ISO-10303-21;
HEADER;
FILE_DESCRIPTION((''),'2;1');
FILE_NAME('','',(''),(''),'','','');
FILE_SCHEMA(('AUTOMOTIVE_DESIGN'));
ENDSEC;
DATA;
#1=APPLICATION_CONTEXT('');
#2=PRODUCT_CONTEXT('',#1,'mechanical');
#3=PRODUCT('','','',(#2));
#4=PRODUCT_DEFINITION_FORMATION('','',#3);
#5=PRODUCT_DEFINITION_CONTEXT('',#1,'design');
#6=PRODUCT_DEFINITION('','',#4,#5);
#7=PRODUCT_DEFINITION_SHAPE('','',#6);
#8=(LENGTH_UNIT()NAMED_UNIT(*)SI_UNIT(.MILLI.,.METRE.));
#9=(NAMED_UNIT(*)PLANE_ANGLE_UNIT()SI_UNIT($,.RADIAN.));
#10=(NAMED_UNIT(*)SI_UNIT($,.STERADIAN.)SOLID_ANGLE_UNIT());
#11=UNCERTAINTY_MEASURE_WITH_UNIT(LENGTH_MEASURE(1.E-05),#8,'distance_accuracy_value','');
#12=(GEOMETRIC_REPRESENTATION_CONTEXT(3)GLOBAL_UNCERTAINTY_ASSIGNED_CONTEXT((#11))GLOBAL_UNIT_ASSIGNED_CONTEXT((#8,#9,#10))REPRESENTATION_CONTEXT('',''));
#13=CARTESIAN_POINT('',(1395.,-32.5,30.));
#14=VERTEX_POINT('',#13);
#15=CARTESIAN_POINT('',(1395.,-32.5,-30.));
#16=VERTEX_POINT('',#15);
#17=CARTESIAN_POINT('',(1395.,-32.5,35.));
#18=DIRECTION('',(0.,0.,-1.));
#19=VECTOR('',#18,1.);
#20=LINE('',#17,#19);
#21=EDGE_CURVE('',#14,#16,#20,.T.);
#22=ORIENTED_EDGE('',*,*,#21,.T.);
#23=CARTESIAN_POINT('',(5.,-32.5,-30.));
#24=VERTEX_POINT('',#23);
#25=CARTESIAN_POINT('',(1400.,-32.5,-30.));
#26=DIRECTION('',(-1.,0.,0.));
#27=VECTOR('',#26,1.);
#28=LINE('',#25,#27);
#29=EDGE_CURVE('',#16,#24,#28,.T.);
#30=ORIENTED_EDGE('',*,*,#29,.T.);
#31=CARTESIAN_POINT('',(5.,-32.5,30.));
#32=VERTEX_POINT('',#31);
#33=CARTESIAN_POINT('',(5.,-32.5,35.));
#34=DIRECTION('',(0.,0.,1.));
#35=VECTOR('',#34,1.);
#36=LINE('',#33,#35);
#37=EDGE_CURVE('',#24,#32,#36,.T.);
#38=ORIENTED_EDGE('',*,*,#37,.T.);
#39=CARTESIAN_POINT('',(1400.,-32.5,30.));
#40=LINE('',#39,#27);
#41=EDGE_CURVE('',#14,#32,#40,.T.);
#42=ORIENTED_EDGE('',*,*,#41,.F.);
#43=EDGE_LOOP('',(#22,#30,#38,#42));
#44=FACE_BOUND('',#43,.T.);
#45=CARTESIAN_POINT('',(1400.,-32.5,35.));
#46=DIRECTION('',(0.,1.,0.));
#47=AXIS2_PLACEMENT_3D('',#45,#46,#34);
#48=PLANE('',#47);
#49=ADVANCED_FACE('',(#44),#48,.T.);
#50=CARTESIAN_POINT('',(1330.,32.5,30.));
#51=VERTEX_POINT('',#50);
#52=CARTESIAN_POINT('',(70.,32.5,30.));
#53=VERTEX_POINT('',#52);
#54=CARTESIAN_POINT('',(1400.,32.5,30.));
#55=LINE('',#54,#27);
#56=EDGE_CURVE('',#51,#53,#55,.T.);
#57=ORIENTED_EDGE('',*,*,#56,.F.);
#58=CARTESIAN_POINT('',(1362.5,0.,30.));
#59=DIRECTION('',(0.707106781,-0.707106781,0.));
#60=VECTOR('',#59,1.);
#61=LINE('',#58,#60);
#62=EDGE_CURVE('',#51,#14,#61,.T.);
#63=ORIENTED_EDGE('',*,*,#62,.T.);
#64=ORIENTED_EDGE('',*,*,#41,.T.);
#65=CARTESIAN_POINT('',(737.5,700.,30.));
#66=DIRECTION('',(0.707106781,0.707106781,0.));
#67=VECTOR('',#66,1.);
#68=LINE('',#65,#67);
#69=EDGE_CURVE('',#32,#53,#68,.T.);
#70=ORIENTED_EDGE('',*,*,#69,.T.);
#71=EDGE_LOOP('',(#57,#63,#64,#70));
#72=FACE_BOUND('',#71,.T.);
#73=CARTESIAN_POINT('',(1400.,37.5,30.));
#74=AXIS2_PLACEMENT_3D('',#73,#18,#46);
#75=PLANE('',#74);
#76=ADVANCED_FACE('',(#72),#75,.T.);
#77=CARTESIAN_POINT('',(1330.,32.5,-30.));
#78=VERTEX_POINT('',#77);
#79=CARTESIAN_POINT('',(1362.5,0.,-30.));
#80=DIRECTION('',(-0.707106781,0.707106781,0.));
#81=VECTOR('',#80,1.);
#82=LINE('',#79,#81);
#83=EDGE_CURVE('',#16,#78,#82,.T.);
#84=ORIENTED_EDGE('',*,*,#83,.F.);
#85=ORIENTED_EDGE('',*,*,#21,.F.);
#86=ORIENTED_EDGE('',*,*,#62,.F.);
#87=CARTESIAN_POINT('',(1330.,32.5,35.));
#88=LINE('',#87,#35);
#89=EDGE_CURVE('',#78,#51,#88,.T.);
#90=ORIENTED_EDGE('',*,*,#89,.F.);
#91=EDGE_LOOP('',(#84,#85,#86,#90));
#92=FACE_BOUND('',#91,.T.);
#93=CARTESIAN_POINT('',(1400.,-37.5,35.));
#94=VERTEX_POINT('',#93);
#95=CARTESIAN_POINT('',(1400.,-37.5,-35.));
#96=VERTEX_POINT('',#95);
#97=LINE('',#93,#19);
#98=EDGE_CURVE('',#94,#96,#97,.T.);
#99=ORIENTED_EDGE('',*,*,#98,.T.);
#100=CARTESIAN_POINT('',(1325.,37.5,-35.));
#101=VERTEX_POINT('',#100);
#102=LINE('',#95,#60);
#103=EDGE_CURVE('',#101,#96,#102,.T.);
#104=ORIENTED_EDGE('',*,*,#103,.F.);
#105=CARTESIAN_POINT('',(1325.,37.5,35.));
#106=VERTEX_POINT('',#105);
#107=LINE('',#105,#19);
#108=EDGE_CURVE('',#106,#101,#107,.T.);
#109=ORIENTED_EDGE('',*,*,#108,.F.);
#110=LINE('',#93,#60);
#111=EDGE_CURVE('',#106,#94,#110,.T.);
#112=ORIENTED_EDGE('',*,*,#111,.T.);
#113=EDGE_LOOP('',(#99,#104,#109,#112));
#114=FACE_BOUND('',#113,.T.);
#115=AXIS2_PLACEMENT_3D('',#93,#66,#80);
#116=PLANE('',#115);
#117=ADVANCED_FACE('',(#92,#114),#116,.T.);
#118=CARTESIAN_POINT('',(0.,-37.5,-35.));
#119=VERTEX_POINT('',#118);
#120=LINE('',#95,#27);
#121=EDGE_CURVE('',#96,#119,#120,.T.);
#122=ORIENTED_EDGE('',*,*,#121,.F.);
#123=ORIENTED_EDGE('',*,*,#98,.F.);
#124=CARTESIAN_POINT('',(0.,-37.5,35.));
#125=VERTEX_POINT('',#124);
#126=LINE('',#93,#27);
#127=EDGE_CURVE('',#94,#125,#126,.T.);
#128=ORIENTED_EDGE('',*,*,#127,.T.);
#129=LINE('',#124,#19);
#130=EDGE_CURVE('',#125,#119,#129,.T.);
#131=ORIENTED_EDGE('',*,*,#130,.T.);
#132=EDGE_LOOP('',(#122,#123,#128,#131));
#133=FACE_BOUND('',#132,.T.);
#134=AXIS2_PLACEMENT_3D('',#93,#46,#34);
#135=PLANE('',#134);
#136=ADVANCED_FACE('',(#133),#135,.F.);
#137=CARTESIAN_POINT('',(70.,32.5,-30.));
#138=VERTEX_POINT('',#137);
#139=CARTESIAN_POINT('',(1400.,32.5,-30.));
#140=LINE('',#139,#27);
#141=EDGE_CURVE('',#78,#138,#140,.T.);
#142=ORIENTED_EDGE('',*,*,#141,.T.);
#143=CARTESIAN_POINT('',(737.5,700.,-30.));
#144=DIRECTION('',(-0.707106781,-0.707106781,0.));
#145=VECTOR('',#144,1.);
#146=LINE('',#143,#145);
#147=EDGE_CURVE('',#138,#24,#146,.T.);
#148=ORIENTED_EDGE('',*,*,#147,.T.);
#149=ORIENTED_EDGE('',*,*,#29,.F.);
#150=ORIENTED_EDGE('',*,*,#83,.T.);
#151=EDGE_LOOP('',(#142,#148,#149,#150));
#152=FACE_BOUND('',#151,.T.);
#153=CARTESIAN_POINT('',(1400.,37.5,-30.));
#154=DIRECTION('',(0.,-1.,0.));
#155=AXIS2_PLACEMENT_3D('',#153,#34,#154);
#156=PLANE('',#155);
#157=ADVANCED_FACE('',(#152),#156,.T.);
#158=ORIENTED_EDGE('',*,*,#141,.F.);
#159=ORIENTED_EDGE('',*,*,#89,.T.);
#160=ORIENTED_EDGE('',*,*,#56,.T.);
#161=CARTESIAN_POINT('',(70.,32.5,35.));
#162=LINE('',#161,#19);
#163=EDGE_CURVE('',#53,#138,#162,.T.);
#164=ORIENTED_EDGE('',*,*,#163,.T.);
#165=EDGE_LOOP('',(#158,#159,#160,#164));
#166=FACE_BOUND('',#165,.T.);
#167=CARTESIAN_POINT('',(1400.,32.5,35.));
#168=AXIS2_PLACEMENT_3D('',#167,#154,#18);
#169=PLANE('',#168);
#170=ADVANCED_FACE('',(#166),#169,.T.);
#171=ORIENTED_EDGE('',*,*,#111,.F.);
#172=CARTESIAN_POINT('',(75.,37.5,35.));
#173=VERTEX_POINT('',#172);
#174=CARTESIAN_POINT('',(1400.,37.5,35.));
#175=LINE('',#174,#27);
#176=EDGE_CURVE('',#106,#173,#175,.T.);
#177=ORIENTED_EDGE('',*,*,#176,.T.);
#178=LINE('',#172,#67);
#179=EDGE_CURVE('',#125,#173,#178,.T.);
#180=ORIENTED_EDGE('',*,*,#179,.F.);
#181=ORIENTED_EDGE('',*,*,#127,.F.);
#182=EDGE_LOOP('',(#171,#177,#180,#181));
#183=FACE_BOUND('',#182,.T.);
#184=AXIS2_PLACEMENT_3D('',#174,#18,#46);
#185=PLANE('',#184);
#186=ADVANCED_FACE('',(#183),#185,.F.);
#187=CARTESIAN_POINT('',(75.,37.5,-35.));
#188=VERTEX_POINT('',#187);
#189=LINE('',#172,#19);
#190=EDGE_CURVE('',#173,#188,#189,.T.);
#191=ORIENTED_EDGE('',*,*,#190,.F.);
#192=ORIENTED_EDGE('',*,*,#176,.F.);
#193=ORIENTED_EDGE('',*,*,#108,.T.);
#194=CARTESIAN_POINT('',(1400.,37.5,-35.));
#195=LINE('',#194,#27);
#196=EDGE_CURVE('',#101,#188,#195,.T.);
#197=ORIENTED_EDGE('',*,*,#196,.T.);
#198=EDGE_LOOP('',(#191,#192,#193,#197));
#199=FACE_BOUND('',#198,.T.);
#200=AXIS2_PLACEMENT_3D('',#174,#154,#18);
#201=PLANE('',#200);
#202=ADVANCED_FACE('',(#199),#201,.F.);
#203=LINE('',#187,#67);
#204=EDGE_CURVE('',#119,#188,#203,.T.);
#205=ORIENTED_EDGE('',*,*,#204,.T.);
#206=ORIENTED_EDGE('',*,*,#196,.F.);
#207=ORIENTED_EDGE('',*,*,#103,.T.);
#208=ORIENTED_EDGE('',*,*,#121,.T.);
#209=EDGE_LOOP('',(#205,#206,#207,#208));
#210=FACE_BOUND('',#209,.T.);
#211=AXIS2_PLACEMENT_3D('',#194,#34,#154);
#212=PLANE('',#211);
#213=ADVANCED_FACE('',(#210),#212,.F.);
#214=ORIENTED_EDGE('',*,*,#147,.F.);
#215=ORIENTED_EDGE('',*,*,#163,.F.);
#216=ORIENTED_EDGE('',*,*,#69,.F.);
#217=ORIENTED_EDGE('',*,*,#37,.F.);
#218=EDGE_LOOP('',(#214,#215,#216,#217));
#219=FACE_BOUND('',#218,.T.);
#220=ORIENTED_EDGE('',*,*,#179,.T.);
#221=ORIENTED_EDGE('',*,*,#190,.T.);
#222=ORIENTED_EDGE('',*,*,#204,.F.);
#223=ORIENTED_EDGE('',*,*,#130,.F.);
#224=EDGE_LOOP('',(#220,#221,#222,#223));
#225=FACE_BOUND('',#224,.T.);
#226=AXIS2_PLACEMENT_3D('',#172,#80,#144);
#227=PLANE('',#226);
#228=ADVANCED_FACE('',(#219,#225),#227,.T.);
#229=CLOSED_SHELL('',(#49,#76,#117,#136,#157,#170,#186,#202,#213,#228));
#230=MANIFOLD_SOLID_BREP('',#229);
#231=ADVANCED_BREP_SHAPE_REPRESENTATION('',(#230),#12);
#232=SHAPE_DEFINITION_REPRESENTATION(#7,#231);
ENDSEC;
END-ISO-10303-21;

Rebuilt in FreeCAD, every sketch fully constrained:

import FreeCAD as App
import Part
import Sketcher

V = App.Vector


def add_polygon(sketch, points):
    """Adds a closed chain of lines whose ends are joined by coincident constraints."""
    first, n = sketch.GeometryCount, len(points)
    for a, b in zip(points, points[1:] + points[:1]):
        sketch.addGeometry(Part.LineSegment(App.Vector(*a, 0), App.Vector(*b, 0)), False)
    for i in range(n):
        sketch.addConstraint(Sketcher.Constraint("Coincident", first + i, 2, first + (i + 1) % n, 1))

doc = App.newDocument("Part")
body = doc.addObject("PartDesign::Body", "Body")

# Sketch on YZ plane
sketch1 = doc.addObject("Sketcher::SketchObject", "Sketch")
body.addObject(sketch1)
sketch1.AttachmentSupport = (doc.YZ_Plane, [""])
sketch1.MapMode = "FlatFace"
add_polygon(sketch1, [(38, 35), (-38, 35), (-38, -35), (38, -35)])  # lines 0-3
add_polygon(sketch1, [(-32, -30), (-32, 30), (32, 30), (32, -30)])  # lines 4-7
sketch1.addConstraint([
    Sketcher.Constraint("Horizontal", 0),
    Sketcher.Constraint("Vertical", 1),
    Sketcher.Constraint("Horizontal", 2),
    Sketcher.Constraint("Vertical", 3),
    Sketcher.Constraint("Vertical", 4),
    Sketcher.Constraint("Horizontal", 5),
    Sketcher.Constraint("Vertical", 6),
    Sketcher.Constraint("Horizontal", 7),
    Sketcher.Constraint("Symmetric", 0, 2, 2, 2, -1, 1),
    Sketcher.Constraint("Symmetric", 4, 2, 6, 2, -1, 1),
    Sketcher.Constraint("DistanceX", 0, 2, 0, 1, 75.0),
    Sketcher.Constraint("DistanceX", 5, 1, 5, 2, 65.0),
    Sketcher.Constraint("DistanceY", 1, 2, 1, 1, 70.0),
    Sketcher.Constraint("DistanceY", 4, 1, 4, 2, 60.0),
])
pad1 = doc.addObject("PartDesign::Pad", "Pad")
body.addObject(pad1)
pad1.Profile = sketch1
pad1.Length = 1400

# Sketch on XY plane
sketch2 = doc.addObject("Sketcher::SketchObject", "Sketch001")
body.addObject(sketch2)
sketch2.AttachmentSupport = (doc.XY_Plane, [""])
sketch2.MapMode = "FlatFace"
sketch2.AttachmentOffset = App.Placement(V(0, 0, -35), App.Rotation())
add_polygon(sketch2, [(1541, 179), (1541, -179), (-141, -179), (-141, 179)])  # lines 0-3
add_polygon(sketch2, [(0, -38), (1400, -38), (1325, 38), (75, 38)])  # lines 4-7
sketch2.addConstraint([
    Sketcher.Constraint("Vertical", 0),
    Sketcher.Constraint("Horizontal", 1),
    Sketcher.Constraint("Vertical", 2),
    Sketcher.Constraint("Horizontal", 3),
    Sketcher.Constraint("Horizontal", 4),
    Sketcher.Constraint("Horizontal", 6),
    Sketcher.Constraint("PointOnObject", 7, 2, -2),
    Sketcher.Constraint("Perpendicular", 5, 7),
    Sketcher.Constraint("Equal", 5, 7),
    Sketcher.Constraint("DistanceX", 4, 1, 4, 2, 1400.0),
    Sketcher.Constraint("DistanceX", 6, 2, 6, 1, 1250.0),
    Sketcher.Constraint("DistanceX", 1, 2, 1, 1, 1682.75),
    Sketcher.Constraint("DistanceY", 0, 2, 0, 1, 357.75),
    Sketcher.Constraint("DistanceY", 4, 2, -1, 1, 37.5),
    Sketcher.Constraint("DistanceX", -1, 1, 0, 2, 1541.375),
    Sketcher.Constraint("DistanceY", 0, 2, -1, 1, 178.875),
])
pocket1 = doc.addObject("PartDesign::Pocket", "Pocket")
body.addObject(pocket1)
pocket1.Profile = sketch2
pocket1.Type = "ThroughAll"
pocket1.Reversed = True

doc.recompute()
